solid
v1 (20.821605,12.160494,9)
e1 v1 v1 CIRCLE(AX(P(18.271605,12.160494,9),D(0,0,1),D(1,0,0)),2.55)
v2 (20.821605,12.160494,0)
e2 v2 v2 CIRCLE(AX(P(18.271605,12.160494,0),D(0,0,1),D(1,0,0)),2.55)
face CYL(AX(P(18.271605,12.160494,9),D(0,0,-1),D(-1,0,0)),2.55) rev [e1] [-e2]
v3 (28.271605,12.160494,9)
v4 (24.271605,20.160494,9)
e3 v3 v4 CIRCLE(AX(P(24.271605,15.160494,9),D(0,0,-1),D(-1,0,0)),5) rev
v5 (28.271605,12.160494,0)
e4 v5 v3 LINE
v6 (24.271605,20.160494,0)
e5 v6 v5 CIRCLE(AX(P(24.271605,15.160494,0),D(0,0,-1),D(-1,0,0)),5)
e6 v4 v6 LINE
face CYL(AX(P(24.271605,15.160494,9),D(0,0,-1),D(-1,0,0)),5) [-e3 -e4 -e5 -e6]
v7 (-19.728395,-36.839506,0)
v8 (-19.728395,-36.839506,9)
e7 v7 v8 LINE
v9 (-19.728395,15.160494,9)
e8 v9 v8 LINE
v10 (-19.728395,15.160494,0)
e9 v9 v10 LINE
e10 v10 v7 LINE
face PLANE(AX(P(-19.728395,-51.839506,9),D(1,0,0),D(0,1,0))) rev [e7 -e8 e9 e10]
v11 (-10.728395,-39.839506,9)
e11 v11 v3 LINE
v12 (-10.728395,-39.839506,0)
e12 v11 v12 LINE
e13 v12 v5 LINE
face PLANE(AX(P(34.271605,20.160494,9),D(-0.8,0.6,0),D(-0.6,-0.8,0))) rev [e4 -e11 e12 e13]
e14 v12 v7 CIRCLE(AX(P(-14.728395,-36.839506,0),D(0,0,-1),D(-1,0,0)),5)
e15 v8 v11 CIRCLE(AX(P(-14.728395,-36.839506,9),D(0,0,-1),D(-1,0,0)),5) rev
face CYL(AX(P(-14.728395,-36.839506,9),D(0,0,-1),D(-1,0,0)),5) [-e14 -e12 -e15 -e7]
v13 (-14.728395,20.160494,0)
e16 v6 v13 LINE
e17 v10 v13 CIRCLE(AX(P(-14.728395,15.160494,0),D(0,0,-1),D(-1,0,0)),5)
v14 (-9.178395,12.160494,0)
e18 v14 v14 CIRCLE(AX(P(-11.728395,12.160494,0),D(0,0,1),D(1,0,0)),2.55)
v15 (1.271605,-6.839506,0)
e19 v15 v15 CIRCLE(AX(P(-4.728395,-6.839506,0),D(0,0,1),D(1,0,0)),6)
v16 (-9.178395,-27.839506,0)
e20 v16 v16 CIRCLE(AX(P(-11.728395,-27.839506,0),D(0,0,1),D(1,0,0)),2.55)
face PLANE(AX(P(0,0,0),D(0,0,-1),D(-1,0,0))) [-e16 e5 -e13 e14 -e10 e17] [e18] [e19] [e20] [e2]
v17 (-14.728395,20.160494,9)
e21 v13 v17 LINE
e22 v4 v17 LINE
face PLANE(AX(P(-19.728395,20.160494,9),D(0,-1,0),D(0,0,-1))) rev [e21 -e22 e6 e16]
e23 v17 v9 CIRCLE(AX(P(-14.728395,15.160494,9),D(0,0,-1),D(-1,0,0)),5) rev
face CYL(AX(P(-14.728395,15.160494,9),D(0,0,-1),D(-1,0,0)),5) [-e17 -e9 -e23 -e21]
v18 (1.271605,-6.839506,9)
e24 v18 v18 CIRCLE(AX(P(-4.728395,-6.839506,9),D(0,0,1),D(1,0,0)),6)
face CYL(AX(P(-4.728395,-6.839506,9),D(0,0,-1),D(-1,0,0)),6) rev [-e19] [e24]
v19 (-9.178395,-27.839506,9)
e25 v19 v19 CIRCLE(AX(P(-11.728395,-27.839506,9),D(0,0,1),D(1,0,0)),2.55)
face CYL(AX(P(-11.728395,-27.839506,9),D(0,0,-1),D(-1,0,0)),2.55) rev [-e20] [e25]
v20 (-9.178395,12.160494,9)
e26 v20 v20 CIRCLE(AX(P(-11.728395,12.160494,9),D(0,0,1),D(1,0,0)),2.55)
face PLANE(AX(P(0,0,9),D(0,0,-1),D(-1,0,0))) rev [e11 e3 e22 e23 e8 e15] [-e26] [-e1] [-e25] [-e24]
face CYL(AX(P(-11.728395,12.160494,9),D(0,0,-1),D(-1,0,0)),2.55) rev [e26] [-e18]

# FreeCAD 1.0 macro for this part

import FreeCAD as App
import Part
import Sketcher


def edges_at(feature, points):
    """Names of the edges that pass closest to the given points."""
    edges = feature.Shape.Edges
    near = lambda p: min(range(len(edges)), key=lambda i: edges[i].distToShape(Part.Vertex(*p))[0])
    return sorted({f"Edge{near(p) + 1}" for p in points})

doc = App.newDocument("Part")
params = doc.addObject("Spreadsheet::Sheet", "Params")
for row, (alias, value) in enumerate([
    ("sketch1_diameter", "12 mm"),
    ("sketch1_diameter2", "5.1 mm"),
    ("sketch1_width", "54 mm"),
    ("sketch1_height", "72 mm"),
    ("pad1_length", "9 mm"),
    ("fillet_radius", "5 mm"),
], start=1):
    params.set(f"A{row}", alias)
    params.set(f"B{row}", "=" + value)
    params.setAlias(f"B{row}", alias)

body = doc.addObject("PartDesign::Body", "Body")

# Sketch on XY plane
sketch1 = body.newObject("Sketcher::SketchObject", "Sketch")
sketch1.AttachmentSupport = (doc.getObject("XY_Plane"), [""])
sketch1.MapMode = "FlatFace"
sketch1.addGeometry([
    Part.LineSegment(App.Vector(34.3, 20.2, 0), App.Vector(-19.7, 20.2, 0)),  # 0
    Part.LineSegment(App.Vector(-19.7, 20.2, 0), App.Vector(-19.7, -51.8, 0)),  # 1
    Part.LineSegment(App.Vector(-19.7, -51.8, 0), App.Vector(34.3, 20.2, 0)),  # 2
    Part.Circle(App.Vector(-11.7, -27.8, 0), App.Vector(0, 0, 1), 2.5),  # 3
    Part.Circle(App.Vector(18.3, 12.2, 0), App.Vector(0, 0, 1), 2.5),  # 4
    Part.Circle(App.Vector(-4.7, -6.8, 0), App.Vector(0, 0, 1), 6),  # 5
    Part.Circle(App.Vector(-11.7, 12.2, 0), App.Vector(0, 0, 1), 2.5),  # 6
], False)
sketch1.addConstraint([
    Sketcher.Constraint("Coincident", 0, 2, 1, 1),
    Sketcher.Constraint("Coincident", 1, 2, 2, 1),
    Sketcher.Constraint("Coincident", 2, 2, 0, 1),
    Sketcher.Constraint("Horizontal", 0),
    Sketcher.Constraint("Vertical", 1),
    Sketcher.Constraint("Equal", 3, 4),
    Sketcher.Constraint("Equal", 4, 6),
    Sketcher.Constraint("Horizontal", 4, 3, 6, 3),
    Sketcher.Constraint("Vertical", 3, 3, 6, 3),
    Sketcher.Constraint("Diameter", 5, 12.0),
    Sketcher.Constraint("Diameter", 3, 5.1),
    Sketcher.Constraint("DistanceX", 0, 2, 0, 1, 54.0),
    Sketcher.Constraint("DistanceY", 1, 2, 1, 1, 72.0),
    Sketcher.Constraint("DistanceX", 3, 3, 4, 3, 30.0),
    Sketcher.Constraint("DistanceY", 3, 3, 4, 3, 40.0),
    Sketcher.Constraint("DistanceX", 3, 3, 5, 3, 7.0),
    Sketcher.Constraint("DistanceY", 3, 3, 5, 3, 21.0),
    Sketcher.Constraint("DistanceX", 0, 2, 6, 3, 8.0),
    Sketcher.Constraint("DistanceY", 6, 3, 0, 2, 8.0),
    Sketcher.Constraint("DistanceX", 3, 3, -1, 1, 11.728395),
    Sketcher.Constraint("DistanceY", 3, 3, -1, 1, 27.839506),
])
sketch1.setExpression("Constraints[9]", "Params.sketch1_diameter")
sketch1.setExpression("Constraints[10]", "Params.sketch1_diameter2")
sketch1.setExpression("Constraints[11]", "Params.sketch1_width")
sketch1.setExpression("Constraints[12]", "Params.sketch1_height")
pad1 = body.newObject("PartDesign::Pad", "Pad")
pad1.Profile = sketch1
pad1.setExpression("Length", "Params.pad1_length")
doc.recompute()

fillet = body.newObject("PartDesign::Fillet", "Fillet")
fillet.Base = (pad1, edges_at(pad1, [(-19.728, 20.16, 4.5), (34.272, 20.16, 4.5), (-19.728, -51.84, 4.5)]))
fillet.setExpression("Radius", "Params.fillet_radius")

doc.recompute()
